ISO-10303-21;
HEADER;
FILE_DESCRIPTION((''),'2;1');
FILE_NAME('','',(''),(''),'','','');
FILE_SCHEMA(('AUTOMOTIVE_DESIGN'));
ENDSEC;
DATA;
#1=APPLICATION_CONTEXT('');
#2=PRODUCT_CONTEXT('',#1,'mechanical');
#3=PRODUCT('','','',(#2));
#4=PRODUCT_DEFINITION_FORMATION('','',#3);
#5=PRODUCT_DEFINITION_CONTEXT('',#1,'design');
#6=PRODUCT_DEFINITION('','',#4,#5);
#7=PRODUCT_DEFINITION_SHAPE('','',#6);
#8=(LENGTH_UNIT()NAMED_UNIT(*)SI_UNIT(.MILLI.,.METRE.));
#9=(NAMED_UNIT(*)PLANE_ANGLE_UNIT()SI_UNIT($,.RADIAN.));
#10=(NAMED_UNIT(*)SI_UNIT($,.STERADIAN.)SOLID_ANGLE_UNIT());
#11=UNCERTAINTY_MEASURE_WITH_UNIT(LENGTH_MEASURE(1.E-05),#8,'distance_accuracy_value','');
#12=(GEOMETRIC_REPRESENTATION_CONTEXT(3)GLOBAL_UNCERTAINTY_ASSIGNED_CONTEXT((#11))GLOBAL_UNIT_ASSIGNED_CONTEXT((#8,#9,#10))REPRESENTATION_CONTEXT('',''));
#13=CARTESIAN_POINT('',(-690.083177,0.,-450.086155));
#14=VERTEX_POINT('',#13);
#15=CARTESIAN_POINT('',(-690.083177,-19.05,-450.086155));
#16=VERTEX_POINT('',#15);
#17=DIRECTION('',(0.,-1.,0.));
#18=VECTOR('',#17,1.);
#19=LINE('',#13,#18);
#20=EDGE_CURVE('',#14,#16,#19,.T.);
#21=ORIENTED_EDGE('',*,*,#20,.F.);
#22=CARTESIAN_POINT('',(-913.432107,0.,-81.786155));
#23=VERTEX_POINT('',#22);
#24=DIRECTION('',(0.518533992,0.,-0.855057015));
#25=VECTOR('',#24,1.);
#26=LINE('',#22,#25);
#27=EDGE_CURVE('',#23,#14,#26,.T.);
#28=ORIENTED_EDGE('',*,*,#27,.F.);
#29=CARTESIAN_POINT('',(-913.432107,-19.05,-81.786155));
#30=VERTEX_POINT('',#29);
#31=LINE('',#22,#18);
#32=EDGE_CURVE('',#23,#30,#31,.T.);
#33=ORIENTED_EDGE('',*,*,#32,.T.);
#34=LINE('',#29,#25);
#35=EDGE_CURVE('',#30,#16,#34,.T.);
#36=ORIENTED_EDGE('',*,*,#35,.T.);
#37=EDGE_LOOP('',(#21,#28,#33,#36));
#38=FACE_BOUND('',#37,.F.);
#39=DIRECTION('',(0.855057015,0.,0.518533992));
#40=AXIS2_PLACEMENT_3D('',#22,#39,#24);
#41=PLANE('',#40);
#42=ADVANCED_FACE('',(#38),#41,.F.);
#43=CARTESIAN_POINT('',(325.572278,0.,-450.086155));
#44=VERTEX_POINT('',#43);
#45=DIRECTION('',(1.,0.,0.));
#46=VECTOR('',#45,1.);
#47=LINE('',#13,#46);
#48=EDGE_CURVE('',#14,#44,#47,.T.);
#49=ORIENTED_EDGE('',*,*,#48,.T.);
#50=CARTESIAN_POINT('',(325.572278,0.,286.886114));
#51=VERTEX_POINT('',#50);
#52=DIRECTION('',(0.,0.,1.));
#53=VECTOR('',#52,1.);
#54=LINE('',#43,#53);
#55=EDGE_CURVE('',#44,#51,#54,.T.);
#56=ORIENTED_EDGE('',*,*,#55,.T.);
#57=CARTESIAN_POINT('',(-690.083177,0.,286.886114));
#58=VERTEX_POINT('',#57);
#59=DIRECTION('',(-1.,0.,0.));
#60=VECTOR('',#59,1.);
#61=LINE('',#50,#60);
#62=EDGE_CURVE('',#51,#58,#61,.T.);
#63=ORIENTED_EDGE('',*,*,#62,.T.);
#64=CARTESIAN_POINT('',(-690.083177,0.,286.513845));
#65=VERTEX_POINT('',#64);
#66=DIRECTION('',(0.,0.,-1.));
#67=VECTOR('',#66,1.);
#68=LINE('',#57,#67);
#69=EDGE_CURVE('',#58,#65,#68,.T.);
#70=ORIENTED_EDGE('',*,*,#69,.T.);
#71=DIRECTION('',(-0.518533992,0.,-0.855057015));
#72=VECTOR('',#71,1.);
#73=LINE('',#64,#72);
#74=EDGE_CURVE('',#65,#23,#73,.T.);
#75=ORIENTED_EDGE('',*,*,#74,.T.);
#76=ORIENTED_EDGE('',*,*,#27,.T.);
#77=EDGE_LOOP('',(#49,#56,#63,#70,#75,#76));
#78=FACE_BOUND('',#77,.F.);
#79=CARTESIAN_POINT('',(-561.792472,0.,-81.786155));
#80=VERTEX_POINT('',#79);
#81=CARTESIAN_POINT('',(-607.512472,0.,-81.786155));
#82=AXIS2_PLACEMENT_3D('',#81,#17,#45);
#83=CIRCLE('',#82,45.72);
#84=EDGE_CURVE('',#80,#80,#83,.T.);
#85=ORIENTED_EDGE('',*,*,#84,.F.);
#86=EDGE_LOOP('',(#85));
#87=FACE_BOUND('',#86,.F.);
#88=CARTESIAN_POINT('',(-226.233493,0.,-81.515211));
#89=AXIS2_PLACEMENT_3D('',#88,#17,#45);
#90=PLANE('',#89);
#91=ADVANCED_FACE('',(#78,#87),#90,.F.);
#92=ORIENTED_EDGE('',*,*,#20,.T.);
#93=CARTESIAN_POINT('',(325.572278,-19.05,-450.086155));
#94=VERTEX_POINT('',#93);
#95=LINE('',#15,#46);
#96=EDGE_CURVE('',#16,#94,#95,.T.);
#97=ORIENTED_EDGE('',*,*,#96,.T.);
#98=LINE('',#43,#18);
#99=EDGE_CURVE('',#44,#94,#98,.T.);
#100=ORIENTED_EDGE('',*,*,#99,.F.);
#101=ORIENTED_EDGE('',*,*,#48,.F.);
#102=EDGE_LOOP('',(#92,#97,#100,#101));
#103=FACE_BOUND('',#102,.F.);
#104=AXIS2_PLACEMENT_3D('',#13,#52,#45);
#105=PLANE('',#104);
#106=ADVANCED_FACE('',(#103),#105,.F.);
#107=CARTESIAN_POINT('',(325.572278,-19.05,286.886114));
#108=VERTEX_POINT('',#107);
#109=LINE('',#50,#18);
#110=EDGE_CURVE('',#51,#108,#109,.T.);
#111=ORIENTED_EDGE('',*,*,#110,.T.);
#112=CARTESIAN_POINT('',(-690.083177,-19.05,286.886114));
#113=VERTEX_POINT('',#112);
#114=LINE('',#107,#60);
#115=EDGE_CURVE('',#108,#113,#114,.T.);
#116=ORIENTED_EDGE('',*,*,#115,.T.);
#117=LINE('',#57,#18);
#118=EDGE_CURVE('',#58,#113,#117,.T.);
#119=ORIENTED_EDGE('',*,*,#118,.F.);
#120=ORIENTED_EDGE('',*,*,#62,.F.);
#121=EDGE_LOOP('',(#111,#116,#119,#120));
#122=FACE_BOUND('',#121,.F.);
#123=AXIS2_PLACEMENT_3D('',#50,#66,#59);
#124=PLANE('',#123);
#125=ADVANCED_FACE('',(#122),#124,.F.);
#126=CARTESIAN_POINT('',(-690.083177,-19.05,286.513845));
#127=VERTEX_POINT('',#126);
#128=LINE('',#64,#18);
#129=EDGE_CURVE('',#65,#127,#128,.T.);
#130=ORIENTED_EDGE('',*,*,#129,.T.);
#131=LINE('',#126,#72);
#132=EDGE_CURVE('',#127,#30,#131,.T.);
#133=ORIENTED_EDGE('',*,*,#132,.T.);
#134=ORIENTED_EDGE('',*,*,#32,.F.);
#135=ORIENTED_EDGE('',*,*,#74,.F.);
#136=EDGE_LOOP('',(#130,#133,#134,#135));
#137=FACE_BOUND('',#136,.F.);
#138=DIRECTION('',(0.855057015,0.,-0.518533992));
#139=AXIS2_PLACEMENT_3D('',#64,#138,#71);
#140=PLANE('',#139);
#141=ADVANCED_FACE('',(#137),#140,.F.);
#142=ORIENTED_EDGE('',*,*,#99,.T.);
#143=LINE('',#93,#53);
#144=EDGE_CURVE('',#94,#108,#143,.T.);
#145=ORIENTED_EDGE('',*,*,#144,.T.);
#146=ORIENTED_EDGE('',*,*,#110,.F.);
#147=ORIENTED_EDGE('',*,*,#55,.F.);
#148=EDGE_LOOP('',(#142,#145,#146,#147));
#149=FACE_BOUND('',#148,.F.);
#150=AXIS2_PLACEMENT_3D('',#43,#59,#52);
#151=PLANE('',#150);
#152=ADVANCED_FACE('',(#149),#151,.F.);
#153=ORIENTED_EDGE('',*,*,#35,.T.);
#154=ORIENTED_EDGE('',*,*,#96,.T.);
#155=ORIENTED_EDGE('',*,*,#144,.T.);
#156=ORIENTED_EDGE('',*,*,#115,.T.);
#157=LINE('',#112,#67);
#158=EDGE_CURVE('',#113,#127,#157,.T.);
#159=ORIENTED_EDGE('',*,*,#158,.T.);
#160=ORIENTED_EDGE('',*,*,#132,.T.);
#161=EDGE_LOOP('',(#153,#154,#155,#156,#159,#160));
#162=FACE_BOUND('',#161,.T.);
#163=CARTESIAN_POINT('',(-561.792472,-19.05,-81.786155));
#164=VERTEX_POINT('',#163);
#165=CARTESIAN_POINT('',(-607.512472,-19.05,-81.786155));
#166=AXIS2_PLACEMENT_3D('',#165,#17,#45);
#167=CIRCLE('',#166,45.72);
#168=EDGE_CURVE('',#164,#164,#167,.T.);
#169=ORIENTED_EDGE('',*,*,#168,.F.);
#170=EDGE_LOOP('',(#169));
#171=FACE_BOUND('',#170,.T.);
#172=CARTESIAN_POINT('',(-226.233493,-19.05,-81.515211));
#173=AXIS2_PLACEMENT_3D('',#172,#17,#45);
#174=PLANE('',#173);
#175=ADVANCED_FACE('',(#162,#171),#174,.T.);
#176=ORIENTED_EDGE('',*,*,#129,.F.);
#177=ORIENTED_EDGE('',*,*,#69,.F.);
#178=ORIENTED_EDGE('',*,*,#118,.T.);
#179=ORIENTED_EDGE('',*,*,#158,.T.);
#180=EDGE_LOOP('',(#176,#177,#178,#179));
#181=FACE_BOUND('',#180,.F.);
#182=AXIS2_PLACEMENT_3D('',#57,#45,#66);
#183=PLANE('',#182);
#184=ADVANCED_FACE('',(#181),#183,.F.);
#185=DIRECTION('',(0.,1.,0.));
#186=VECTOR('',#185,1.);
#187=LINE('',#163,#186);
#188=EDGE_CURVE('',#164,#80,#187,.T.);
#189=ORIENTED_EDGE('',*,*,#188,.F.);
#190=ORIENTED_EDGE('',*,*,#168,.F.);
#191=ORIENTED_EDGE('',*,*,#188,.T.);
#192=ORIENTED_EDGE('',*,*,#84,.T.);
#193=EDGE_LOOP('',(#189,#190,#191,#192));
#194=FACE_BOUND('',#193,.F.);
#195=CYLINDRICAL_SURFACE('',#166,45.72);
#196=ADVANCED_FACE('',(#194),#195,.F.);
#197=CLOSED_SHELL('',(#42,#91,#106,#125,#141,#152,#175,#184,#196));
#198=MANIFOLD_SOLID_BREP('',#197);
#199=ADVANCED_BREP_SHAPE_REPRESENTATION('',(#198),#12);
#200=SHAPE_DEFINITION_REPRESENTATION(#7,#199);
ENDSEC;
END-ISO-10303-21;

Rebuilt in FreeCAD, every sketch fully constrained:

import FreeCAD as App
import Part
import Sketcher
from FreeCAD import Vector
Q = App.Units.Quantity

doc = App.newDocument("Part")
body = doc.addObject("PartDesign::Body", "Body")

# Sketch on XZ plane
sketch1 = doc.addObject("Sketcher::SketchObject", "Sketch")
body.addObject(sketch1)
sketch1.AttachmentSupport = (doc.XZ_Plane, [""])
sketch1.MapMode = "FlatFace"
sketch1.addGeometry([
    Part.LineSegment(Vector(-690.08, 286.51, 0), Vector(-913.43, -81.79, 0)),  # 0
    Part.LineSegment(Vector(-913.43, -81.79, 0), Vector(-690.08, -450.09, 0)),  # 1
    Part.LineSegment(Vector(-690.08, -450.09, 0), Vector(325.57, -450.09, 0)),  # 2
    Part.LineSegment(Vector(325.57, -450.09, 0), Vector(325.57, 286.89, 0)),  # 3
    Part.LineSegment(Vector(325.57, 286.89, 0), Vector(-690.08, 286.89, 0)),  # 4
    Part.LineSegment(Vector(-690.08, 286.89, 0), Vector(-690.08, 286.51, 0)),  # 5
], False)
sketch1.addConstraint([
    Sketcher.Constraint("Coincident", 0, 2, 1, 1),
    Sketcher.Constraint("Coincident", 1, 2, 2, 1),
    Sketcher.Constraint("Coincident", 2, 2, 3, 1),
    Sketcher.Constraint("Coincident", 3, 2, 4, 1),
    Sketcher.Constraint("Coincident", 4, 2, 5, 1),
    Sketcher.Constraint("Coincident", 5, 2, 0, 1),
    Sketcher.Constraint("Horizontal", 2),
    Sketcher.Constraint("Vertical", 3),
    Sketcher.Constraint("Horizontal", 4),
    Sketcher.Constraint("Vertical", 5),
    Sketcher.Constraint("Vertical", 1, 2, 4, 2),
    Sketcher.Constraint("Equal", 0, 1),
    Sketcher.Constraint("DistanceY", 1, 2, 5, 2, Q("29 in")),
    Sketcher.Constraint("DistanceX", 0, 2, 2, 2, Q("48.7797002 in")),
    Sketcher.Constraint("DistanceY", 3, 1, 3, 2, 736.972269),
    Sketcher.Constraint("Distance", 0, 430.731511),
    Sketcher.Constraint("DistanceX", -1, 1, 2, 2, 325.572278),
    Sketcher.Constraint("DistanceY", 0, 2, -1, 1, 81.786155),
])
pad1 = doc.addObject("PartDesign::Pad", "Pad")
body.addObject(pad1)
pad1.Profile = sketch1
pad1.Length = Q("0.75 in")

# Sketch on XZ plane
sketch2 = doc.addObject("Sketcher::SketchObject", "Sketch001")
body.addObject(sketch2)
sketch2.AttachmentSupport = (doc.XZ_Plane, [""])
sketch2.MapMode = "FlatFace"
sketch2.AttachmentOffset = App.Placement(Vector(0, 0, 0.75 * 25.4), App.Rotation())
sketch2.addGeometry(Part.Circle(Vector(-608, -82, 0), Vector(0, 0, 1), 46), False)
sketch2.addConstraint([
    Sketcher.Constraint("Diameter", 0, Q("3.6 in")),
    Sketcher.Constraint("DistanceX", 0, 3, -1, 1, 607.512472),
    Sketcher.Constraint("DistanceY", 0, 3, -1, 1, 81.786155),
])
pocket1 = doc.addObject("PartDesign::Pocket", "Pocket")
body.addObject(pocket1)
pocket1.Profile = sketch2
pocket1.Length = Q("1 in")

doc.recompute()
